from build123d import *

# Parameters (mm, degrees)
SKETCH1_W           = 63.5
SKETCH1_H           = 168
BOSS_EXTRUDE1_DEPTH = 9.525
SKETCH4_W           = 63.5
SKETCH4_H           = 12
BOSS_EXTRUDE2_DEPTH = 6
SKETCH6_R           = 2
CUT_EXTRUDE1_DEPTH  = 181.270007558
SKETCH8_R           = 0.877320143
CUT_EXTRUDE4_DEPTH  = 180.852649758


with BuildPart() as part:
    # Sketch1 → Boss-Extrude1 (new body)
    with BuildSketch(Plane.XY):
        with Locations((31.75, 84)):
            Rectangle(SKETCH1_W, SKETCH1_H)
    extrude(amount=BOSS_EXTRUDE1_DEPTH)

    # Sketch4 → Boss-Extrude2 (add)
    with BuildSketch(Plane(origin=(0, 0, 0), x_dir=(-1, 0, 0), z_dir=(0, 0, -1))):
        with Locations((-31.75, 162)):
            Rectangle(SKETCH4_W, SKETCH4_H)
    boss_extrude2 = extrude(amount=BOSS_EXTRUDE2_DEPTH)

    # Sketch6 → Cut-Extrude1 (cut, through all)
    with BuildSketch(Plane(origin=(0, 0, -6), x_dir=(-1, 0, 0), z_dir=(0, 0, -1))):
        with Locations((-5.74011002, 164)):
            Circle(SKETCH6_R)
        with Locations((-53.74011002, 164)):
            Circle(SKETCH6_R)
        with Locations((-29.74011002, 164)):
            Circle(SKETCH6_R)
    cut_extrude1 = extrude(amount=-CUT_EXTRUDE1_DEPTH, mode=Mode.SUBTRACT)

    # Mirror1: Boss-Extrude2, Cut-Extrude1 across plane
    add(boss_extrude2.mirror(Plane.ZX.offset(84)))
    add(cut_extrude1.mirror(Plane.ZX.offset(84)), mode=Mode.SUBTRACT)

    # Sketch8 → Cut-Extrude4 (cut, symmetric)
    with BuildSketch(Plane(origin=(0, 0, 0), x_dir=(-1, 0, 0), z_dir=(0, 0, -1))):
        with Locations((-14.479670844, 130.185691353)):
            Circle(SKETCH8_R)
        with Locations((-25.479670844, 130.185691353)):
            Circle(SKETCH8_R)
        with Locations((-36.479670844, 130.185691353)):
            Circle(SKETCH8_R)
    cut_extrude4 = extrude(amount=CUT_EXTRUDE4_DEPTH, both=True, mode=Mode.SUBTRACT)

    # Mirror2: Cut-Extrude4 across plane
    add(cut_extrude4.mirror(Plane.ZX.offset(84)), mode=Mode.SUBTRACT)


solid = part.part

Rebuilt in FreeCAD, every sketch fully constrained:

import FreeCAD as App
import Part
import Sketcher
from FreeCAD import Vector


def add_polygon(sketch, points):
    """Adds a closed chain of lines whose ends are joined by coincident constraints."""
    first, n = sketch.GeometryCount, len(points)
    for a, b in zip(points, points[1:] + points[:1]):
        sketch.addGeometry(Part.LineSegment(App.Vector(*a, 0), App.Vector(*b, 0)), False)
    for i in range(n):
        sketch.addConstraint(Sketcher.Constraint("Coincident", first + i, 2, first + (i + 1) % n, 1))

doc = App.newDocument("Part")
body = doc.addObject("PartDesign::Body", "Body")

# Sketch on XY plane
sketch1 = body.newObject("Sketcher::SketchObject", "Sketch")
sketch1.AttachmentSupport = (doc.getObject("XY_Plane"), [""])
sketch1.MapMode = "FlatFace"
add_polygon(sketch1, [(0, 168), (0, 0), (63.5, 0), (63.5, 168)])  # lines 0-3
sketch1.addConstraint([
    Sketcher.Constraint("Vertical", 0),
    Sketcher.Constraint("Horizontal", 1),
    Sketcher.Constraint("Vertical", 2),
    Sketcher.Constraint("Horizontal", 3),
    Sketcher.Constraint("Coincident", 0, 2, -1, 1),
    Sketcher.Constraint("DistanceY", 0, 2, 0, 1, 168.0),
    Sketcher.Constraint("DistanceX", 1, 1, 1, 2, 63.5),
])
pad1 = body.newObject("PartDesign::Pad", "Pad")
pad1.Profile = sketch1
pad1.Length = 9.525

# Sketch on XY plane
sketch2 = body.newObject("Sketcher::SketchObject", "Sketch001")
sketch2.AttachmentSupport = (doc.getObject("XY_Plane"), [""])
sketch2.MapMode = "FlatFace"
add_polygon(sketch2, [(63.5, 168), (63.5, 156), (0, 156), (0, 168)])  # lines 0-3
sketch2.addConstraint([
    Sketcher.Constraint("Vertical", 0),
    Sketcher.Constraint("Horizontal", 1),
    Sketcher.Constraint("Vertical", 2),
    Sketcher.Constraint("Horizontal", 3),
    Sketcher.Constraint("PointOnObject", 1, 2, -2),
    Sketcher.Constraint("DistanceY", 0, 2, 0, 1, 12.0),
    Sketcher.Constraint("DistanceX", 1, 2, 1, 1, 63.5),
    Sketcher.Constraint("DistanceY", -1, 1, 0, 2, 156.0),
])
pad2 = body.newObject("PartDesign::Pad", "Pad001")
pad2.Profile = sketch2
pad2.Length = 6
pad2.Reversed = True

# Sketch on XY plane
sketch3 = body.newObject("Sketcher::SketchObject", "Sketch002")
sketch3.AttachmentSupport = (doc.getObject("XY_Plane"), [""])
sketch3.MapMode = "FlatFace"
sketch3.AttachmentOffset = App.Placement(Vector(0, 0, -6), App.Rotation())
sketch3.addGeometry([
    Part.Circle(Vector(5.74011, 164, 0), Vector(0, 0, 1), 2),
    Part.Circle(Vector(53.74011, 164, 0), Vector(0, 0, 1), 2),
    Part.Circle(Vector(29.74011, 164, 0), Vector(0, 0, 1), 2),
], False)
sketch3.addConstraint([
    Sketcher.Constraint("Equal", 0, 1),
    Sketcher.Constraint("Equal", 1, 2),
    Sketcher.Constraint("Horizontal", 0, 3, 1, 3),
    Sketcher.Constraint("Horizontal", 1, 3, 2, 3),
    Sketcher.Constraint("Diameter", 0, 4.0),
    Sketcher.Constraint("DistanceY", -1, 1, 0, 3, 164.0),
    Sketcher.Constraint("DistanceX", 0, 3, 1, 3, 48.0),
    Sketcher.Constraint("DistanceX", 0, 3, 2, 3, 24.0),
    Sketcher.Constraint("DistanceX", -1, 1, 0, 3, 5.74011),
])
pocket1 = body.newObject("PartDesign::Pocket", "Pocket")
pocket1.Profile = sketch3
pocket1.Type = "ThroughAll"
pocket1.Reversed = True
doc.recompute()

datumplane = body.newObject("PartDesign::Plane", "DatumPlane")
datumplane.AttachmentSupport = (doc.getObject("XZ_Plane"), [""])
datumplane.MapMode = "FlatFace"
datumplane.AttachmentOffset = App.Placement(Vector(0, 0, -84), App.Rotation())
mirrored = body.newObject("PartDesign::Mirrored", "Mirrored")
mirrored.Originals = [pad2, pocket1]
mirrored.MirrorPlane = (datumplane, [""])
body.Tip = mirrored

# Sketch on XY plane
sketch4 = body.newObject("Sketcher::SketchObject", "Sketch003")
sketch4.AttachmentSupport = (doc.getObject("XY_Plane"), [""])
sketch4.MapMode = "FlatFace"
sketch4.addGeometry([
    Part.Circle(Vector(14.479671, 130.185691, 0), Vector(0, 0, 1), 0.87732),
    Part.Circle(Vector(25.479671, 130.185691, 0), Vector(0, 0, 1), 0.87732),
    Part.Circle(Vector(36.479671, 130.185691, 0), Vector(0, 0, 1), 0.87732),
], False)
sketch4.addConstraint([
    Sketcher.Constraint("Equal", 0, 1),
    Sketcher.Constraint("Equal", 1, 2),
    Sketcher.Constraint("Horizontal", 0, 3, 1, 3),
    Sketcher.Constraint("Horizontal", 1, 3, 2, 3),
    Sketcher.Constraint("DistanceX", 0, 3, 1, 3, 11.0),
    Sketcher.Constraint("DistanceX", 1, 3, 2, 3, 11.0),
    Sketcher.Constraint("Diameter", 0, 1.75464),
    Sketcher.Constraint("DistanceX", -1, 1, 0, 3, 14.479671),
    Sketcher.Constraint("DistanceY", -1, 1, 0, 3, 130.185691),
])
pocket2 = body.newObject("PartDesign::Pocket", "Pocket001")
pocket2.Profile = sketch4
pocket2.Length = 361.7053
pocket2.Midplane = True
doc.recompute()

datumplane2 = body.newObject("PartDesign::Plane", "DatumPlane001")
datumplane2.AttachmentSupport = (doc.getObject("XZ_Plane"), [""])
datumplane2.MapMode = "FlatFace"
datumplane2.AttachmentOffset = App.Placement(Vector(0, 0, -84), App.Rotation())
mirrored2 = body.newObject("PartDesign::Mirrored", "Mirrored001")
mirrored2.Originals = [pocket2]
mirrored2.MirrorPlane = (datumplane2, [""])
body.Tip = mirrored2

doc.recompute()
